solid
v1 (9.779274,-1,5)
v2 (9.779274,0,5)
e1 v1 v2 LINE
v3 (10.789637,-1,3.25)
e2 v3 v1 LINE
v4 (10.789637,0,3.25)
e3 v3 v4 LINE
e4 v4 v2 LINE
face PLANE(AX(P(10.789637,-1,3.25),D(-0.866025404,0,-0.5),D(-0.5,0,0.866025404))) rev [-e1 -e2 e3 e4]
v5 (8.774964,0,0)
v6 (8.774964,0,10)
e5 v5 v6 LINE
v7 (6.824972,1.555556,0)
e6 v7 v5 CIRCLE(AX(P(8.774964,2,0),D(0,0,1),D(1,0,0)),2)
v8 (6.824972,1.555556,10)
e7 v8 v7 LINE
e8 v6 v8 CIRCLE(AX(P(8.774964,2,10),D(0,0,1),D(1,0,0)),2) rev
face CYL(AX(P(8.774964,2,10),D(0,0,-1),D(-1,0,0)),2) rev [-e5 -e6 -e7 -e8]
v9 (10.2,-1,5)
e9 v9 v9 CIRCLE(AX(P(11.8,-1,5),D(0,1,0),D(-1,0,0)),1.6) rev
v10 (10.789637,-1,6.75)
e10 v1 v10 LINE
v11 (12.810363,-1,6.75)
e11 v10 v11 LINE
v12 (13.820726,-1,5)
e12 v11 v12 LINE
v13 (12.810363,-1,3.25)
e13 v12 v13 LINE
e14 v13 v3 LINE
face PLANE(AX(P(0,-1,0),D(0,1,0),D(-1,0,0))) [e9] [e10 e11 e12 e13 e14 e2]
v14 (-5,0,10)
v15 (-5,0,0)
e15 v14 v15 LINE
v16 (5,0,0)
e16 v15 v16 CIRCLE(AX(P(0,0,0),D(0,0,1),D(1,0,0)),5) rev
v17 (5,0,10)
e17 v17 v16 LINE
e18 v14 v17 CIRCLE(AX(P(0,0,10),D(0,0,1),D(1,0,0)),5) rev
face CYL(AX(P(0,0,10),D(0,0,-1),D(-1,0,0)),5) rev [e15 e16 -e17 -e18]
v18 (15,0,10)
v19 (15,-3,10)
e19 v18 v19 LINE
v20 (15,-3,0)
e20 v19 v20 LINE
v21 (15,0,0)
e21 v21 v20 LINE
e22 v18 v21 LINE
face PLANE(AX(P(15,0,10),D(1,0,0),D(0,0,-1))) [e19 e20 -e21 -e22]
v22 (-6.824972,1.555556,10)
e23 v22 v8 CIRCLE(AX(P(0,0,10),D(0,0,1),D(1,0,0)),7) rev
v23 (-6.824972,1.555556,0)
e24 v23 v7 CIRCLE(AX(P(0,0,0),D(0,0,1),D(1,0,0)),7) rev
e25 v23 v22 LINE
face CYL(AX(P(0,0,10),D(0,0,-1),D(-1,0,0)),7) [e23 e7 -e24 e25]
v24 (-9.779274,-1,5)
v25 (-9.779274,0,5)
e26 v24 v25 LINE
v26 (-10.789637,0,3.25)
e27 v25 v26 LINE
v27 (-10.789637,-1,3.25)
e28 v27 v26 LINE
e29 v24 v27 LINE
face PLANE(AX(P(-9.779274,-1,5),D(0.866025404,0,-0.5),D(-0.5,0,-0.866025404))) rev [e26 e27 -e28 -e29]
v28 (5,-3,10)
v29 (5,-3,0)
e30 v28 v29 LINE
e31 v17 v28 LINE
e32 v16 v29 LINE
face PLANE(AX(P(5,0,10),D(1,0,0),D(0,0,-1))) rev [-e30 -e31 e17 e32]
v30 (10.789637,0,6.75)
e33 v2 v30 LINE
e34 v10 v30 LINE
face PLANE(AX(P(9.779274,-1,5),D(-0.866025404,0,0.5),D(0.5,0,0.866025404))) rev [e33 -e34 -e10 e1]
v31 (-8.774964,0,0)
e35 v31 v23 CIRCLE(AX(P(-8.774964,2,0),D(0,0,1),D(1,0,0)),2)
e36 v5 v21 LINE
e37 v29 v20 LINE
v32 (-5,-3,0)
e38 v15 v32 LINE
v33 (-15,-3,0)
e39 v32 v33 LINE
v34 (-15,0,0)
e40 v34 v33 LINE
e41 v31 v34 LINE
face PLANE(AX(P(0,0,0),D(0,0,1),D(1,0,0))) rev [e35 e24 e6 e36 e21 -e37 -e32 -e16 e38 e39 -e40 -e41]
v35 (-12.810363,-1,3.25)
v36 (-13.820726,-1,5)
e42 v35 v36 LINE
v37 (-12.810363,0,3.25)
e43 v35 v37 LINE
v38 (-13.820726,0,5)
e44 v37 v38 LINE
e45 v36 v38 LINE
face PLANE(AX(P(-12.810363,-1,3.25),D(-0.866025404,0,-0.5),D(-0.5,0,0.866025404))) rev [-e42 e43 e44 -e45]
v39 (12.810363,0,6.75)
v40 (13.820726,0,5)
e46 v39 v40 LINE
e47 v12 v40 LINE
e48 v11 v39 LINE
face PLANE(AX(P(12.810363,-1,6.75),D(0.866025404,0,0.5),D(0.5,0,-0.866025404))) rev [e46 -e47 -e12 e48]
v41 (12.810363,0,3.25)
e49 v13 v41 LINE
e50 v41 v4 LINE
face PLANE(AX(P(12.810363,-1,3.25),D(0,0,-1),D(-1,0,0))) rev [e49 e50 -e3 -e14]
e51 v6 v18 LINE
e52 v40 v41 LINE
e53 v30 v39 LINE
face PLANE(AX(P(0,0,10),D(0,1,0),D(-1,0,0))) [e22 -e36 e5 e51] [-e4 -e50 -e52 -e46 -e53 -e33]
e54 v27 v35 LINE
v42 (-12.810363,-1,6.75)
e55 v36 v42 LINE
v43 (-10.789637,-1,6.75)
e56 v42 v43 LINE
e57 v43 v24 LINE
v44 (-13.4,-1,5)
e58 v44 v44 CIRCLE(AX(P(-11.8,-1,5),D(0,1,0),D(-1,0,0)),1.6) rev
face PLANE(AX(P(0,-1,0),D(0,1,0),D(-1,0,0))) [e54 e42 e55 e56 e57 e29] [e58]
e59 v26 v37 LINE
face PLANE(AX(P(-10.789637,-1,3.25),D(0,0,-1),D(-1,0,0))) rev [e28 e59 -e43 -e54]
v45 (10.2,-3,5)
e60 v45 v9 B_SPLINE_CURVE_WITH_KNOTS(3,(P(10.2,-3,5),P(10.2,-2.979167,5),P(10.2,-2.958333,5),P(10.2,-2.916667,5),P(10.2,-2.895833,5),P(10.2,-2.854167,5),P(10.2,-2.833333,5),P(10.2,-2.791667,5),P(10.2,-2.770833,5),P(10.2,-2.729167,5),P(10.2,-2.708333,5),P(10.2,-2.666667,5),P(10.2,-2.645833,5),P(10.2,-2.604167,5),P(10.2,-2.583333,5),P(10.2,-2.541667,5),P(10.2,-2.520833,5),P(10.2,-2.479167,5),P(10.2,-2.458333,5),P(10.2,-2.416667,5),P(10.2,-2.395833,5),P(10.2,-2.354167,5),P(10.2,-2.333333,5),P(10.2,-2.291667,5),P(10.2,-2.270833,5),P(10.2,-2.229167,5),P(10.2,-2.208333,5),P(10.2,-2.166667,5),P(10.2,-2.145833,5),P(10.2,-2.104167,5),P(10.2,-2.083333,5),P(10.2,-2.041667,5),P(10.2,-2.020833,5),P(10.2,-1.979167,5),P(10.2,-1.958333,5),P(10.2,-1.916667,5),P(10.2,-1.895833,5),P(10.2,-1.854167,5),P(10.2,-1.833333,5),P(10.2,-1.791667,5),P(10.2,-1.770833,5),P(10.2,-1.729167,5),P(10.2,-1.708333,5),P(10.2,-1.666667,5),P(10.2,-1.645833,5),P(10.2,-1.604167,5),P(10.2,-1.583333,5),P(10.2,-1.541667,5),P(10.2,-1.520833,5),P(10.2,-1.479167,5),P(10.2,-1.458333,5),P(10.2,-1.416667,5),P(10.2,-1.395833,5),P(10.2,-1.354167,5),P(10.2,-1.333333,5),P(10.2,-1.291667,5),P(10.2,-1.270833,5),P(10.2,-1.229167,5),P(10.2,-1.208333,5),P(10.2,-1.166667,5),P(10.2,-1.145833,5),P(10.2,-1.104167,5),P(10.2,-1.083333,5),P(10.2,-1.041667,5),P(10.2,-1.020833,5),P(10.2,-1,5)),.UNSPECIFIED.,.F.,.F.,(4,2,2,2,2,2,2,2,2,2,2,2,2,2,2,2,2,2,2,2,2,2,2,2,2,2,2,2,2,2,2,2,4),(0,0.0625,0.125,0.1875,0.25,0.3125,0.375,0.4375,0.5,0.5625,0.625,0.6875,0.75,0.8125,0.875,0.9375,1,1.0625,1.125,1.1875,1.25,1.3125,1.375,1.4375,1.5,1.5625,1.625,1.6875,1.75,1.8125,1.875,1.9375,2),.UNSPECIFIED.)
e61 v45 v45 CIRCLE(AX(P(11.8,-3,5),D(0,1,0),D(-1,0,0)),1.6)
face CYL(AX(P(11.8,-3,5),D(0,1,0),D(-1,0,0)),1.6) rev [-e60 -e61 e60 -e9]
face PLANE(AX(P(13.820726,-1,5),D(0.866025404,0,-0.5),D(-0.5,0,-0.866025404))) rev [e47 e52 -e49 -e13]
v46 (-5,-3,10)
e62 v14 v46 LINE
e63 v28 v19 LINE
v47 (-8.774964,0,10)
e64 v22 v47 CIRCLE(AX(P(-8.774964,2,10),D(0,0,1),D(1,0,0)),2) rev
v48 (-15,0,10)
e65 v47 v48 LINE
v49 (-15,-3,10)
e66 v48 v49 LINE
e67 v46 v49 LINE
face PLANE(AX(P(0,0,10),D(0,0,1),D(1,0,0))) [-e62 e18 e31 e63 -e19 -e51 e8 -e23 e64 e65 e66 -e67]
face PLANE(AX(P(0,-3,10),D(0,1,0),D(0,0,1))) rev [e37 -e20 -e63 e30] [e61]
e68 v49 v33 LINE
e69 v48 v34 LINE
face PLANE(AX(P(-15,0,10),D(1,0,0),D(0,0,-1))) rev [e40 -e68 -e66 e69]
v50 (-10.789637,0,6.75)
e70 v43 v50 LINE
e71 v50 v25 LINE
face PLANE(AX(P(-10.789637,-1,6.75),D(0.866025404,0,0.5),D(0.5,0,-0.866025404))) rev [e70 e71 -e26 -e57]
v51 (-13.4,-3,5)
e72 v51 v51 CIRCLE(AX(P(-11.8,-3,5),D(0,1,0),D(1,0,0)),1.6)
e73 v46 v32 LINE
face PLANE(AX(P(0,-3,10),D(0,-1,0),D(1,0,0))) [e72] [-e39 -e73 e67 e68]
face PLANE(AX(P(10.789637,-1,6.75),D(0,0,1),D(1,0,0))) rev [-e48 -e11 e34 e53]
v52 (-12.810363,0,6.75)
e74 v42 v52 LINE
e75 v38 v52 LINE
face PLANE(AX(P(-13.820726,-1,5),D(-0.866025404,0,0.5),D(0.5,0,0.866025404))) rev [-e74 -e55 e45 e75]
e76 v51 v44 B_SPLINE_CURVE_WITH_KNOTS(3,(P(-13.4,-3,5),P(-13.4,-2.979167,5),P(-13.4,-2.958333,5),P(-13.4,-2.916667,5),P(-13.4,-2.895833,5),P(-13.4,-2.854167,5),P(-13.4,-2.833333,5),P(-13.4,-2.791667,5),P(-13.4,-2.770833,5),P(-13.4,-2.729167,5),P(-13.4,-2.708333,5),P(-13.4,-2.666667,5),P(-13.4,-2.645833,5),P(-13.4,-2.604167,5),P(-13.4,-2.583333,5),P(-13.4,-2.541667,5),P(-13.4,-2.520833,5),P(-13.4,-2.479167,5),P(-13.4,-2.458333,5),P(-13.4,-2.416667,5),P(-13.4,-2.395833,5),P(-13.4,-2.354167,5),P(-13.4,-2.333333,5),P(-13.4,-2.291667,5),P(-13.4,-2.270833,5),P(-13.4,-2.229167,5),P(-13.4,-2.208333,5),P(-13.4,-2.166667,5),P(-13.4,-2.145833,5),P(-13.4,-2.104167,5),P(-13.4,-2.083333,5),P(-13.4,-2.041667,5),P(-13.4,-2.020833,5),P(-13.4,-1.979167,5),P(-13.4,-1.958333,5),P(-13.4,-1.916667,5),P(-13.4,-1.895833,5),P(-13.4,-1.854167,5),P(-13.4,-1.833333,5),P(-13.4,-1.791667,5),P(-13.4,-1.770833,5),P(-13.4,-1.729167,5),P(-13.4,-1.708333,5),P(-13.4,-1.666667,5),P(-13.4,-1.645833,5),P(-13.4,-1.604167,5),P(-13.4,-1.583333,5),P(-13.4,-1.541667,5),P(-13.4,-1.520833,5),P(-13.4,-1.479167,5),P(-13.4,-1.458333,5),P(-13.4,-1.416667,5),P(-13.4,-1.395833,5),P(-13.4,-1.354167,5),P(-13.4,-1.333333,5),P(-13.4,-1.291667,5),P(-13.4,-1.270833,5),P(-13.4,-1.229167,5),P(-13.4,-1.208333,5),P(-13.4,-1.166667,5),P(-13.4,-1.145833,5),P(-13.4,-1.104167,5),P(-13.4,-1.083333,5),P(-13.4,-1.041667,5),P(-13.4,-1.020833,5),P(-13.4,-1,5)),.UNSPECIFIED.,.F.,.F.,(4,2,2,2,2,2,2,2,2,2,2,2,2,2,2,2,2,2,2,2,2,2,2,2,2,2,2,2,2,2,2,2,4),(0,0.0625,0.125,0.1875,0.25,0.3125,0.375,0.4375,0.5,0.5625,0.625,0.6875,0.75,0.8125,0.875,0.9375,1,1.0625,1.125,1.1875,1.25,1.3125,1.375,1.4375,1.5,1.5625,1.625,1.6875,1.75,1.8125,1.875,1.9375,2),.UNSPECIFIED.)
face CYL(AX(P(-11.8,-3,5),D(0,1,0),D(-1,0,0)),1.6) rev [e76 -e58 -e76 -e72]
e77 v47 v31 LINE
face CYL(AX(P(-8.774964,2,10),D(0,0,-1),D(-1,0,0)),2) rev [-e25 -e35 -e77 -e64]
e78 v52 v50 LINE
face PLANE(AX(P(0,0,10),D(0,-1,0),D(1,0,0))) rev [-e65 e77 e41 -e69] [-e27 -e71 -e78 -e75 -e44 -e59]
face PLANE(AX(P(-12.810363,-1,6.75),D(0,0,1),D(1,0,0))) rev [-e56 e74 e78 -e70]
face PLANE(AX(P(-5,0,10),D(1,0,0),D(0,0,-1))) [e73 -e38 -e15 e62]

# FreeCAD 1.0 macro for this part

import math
import FreeCAD as App
import Part
import Sketcher

V = App.Vector
Q = App.Units.Quantity


def edges_at(feature, points):
    """Names of the edges that pass closest to the given points."""
    edges = feature.Shape.Edges
    near = lambda p: min(range(len(edges)), key=lambda i: edges[i].distToShape(Part.Vertex(*p))[0])
    return sorted({f"Edge{near(p) + 1}" for p in points})

doc = App.newDocument("Part")
body = doc.addObject("PartDesign::Body", "Body")

sketch1 = body.newObject("Sketcher::SketchObject", "Sketch")
sketch1.AttachmentSupport = (doc.getObject("XY_Plane"), [""])
sketch1.MapMode = "FlatFace"
sketch1.addGeometry([
    Part.LineSegment(V(-15, 0, 0), V(-15, -3, 0)),
    Part.LineSegment(V(-15, -3, 0), V(-5, -3, 0)),
    Part.LineSegment(V(-5, -3, 0), V(-5, 0, 0)),
    Part.ArcOfCircle(Part.Circle(V(0, 0, 0), V(0, 0, 1), 5), math.radians(0), math.radians(180)),
    Part.LineSegment(V(5, 0, 0), V(5, -3, 0)),
    Part.LineSegment(V(5, -3, 0), V(15, -3, 0)),
    Part.LineSegment(V(15, -3, 0), V(15, 0, 0)),
    Part.LineSegment(V(15, 0, 0), V(7, 0, 0)),
    Part.ArcOfCircle(Part.Circle(V(0, 0, 0), V(0, 0, 1), 7), math.radians(0), math.radians(180)),
    Part.LineSegment(V(-7, 0, 0), V(-15, 0, 0)),
], False)
sketch1.addConstraint([
    Sketcher.Constraint("Coincident", 0, 2, 1, 1),
    Sketcher.Constraint("Coincident", 1, 2, 2, 1),
    Sketcher.Constraint("Tangent", 2, 2, 3, 2),
    Sketcher.Constraint("Tangent", 3, 1, 4, 1),
    Sketcher.Constraint("Coincident", 4, 2, 5, 1),
    Sketcher.Constraint("Coincident", 5, 2, 6, 1),
    Sketcher.Constraint("Coincident", 6, 2, 7, 1),
    Sketcher.Constraint("Coincident", 7, 2, 8, 1),
    Sketcher.Constraint("Coincident", 8, 2, 9, 1),
    Sketcher.Constraint("Coincident", 9, 2, 0, 1),
    Sketcher.Constraint("Vertical", 0),
    Sketcher.Constraint("Horizontal", 1),
    Sketcher.Constraint("Vertical", 2),
    Sketcher.Constraint("Vertical", 4),
    Sketcher.Constraint("Horizontal", 5),
    Sketcher.Constraint("Vertical", 6),
    Sketcher.Constraint("Horizontal", 7),
    Sketcher.Constraint("Horizontal", 9),
    Sketcher.Constraint("Coincident", 3, 3, -1, 1),
    Sketcher.Constraint("Coincident", 8, 3, -1, 1),
    Sketcher.Constraint("Symmetric", 6, 2, 9, 2, -1, 1),
    Sketcher.Constraint("PointOnObject", 6, 2, -1),
    Sketcher.Constraint("Horizontal", 1, 2, 4, 2),
    Sketcher.Constraint("Radius", 3, Q("5 mm")),
    Sketcher.Constraint("Radius", 8, Q("7 mm")),
    Sketcher.Constraint("DistanceX", 1, 1, 1, 2, Q("10 mm")),
    Sketcher.Constraint("DistanceY", 0, 2, 0, 1, Q("3 mm")),
])
pad1 = body.newObject("PartDesign::Pad", "Pad")
pad1.Profile = sketch1
pad1.Length = 10
doc.recompute()

fillet = body.newObject("PartDesign::Fillet", "Fillet")
fillet.Base = (pad1, edges_at(pad1, [(-7, 0, 5), (7, 0, 5)]))
fillet.Radius = 2

sketch2 = body.newObject("Sketcher::SketchObject", "Sketch001")
sketch2.AttachmentSupport = (doc.getObject("XZ_Plane"), [""])
sketch2.MapMode = "FlatFace"
sketch2.addGeometry([
    Part.Circle(V(11.8, 5, 0), V(0, 0, 1), 1.6),
    Part.Circle(V(-11.8, 5, 0), V(0, 0, 1), 1.6),
], False)
sketch2.addConstraint([
    Sketcher.Constraint("Equal", 0, 1),
    Sketcher.Constraint("Symmetric", 0, 3, 1, 3, -2),
    Sketcher.Constraint("Diameter", 0, Q("3.2 mm")),
    Sketcher.Constraint("DistanceY", -1, 1, 0, 3, Q("5 mm")),
    Sketcher.Constraint("DistanceX", -1, 1, 0, 3, Q("11.8 mm")),
])
pocket1 = body.newObject("PartDesign::Pocket", "Pocket")
pocket1.Profile = sketch2
pocket1.Type = "ThroughAll"
pocket1.Reversed = True

sketch3 = body.newObject("Sketcher::SketchObject", "Sketch002")
sketch3.AttachmentSupport = (doc.getObject("XZ_Plane"), [""])
sketch3.MapMode = "FlatFace"
sketch3.addGeometry([
    Part.LineSegment(V(10.789637, 6.75, 0), V(12.810363, 6.75, 0)),
    Part.LineSegment(V(12.810363, 6.75, 0), V(13.820726, 5, 0)),
    Part.LineSegment(V(13.820726, 5, 0), V(12.810363, 3.25, 0)),
    Part.LineSegment(V(12.810363, 3.25, 0), V(10.789637, 3.25, 0)),
    Part.LineSegment(V(10.789637, 3.25, 0), V(9.779274, 5, 0)),
    Part.LineSegment(V(9.779274, 5, 0), V(10.789637, 6.75, 0)),
    Part.LineSegment(V(-12.810363, 6.75, 0), V(-10.789637, 6.75, 0)),
    Part.LineSegment(V(-10.789637, 6.75, 0), V(-9.779274, 5, 0)),
    Part.LineSegment(V(-9.779274, 5, 0), V(-10.789637, 3.25, 0)),
    Part.LineSegment(V(-10.789637, 3.25, 0), V(-12.810363, 3.25, 0)),
    Part.LineSegment(V(-12.810363, 3.25, 0), V(-13.820726, 5, 0)),
    Part.LineSegment(V(-13.820726, 5, 0), V(-12.810363, 6.75, 0)),
], False)
sketch3.addConstraint([
    Sketcher.Constraint("Coincident", 0, 2, 1, 1),
    Sketcher.Constraint("Coincident", 1, 2, 2, 1),
    Sketcher.Constraint("Coincident", 2, 2, 3, 1),
    Sketcher.Constraint("Coincident", 3, 2, 4, 1),
    Sketcher.Constraint("Coincident", 4, 2, 5, 1),
    Sketcher.Constraint("Coincident", 5, 2, 0, 1),
    Sketcher.Constraint("Coincident", 6, 2, 7, 1),
    Sketcher.Constraint("Coincident", 7, 2, 8, 1),
    Sketcher.Constraint("Coincident", 8, 2, 9, 1),
    Sketcher.Constraint("Coincident", 9, 2, 10, 1),
    Sketcher.Constraint("Coincident", 10, 2, 11, 1),
    Sketcher.Constraint("Coincident", 11, 2, 6, 1),
    Sketcher.Constraint("Horizontal", 0),
    Sketcher.Constraint("Horizontal", 3),
    Sketcher.Constraint("Horizontal", 6),
    Sketcher.Constraint("Horizontal", 9),
    Sketcher.Constraint("Symmetric", 5, 2, 6, 2, -2),
    Sketcher.Constraint("Symmetric", 4, 2, 7, 2, -2),
    Sketcher.Constraint("Symmetric", 3, 2, 8, 2, -2),
    Sketcher.Constraint("Symmetric", 1, 2, 10, 2, -2),
    Sketcher.Constraint("Parallel", 1, 4),
    Sketcher.Constraint("Parallel", 2, 5),
    Sketcher.Constraint("Parallel", 4, 7),
    Sketcher.Constraint("Parallel", 7, 10),
    Sketcher.Constraint("Parallel", 8, 11),
    Sketcher.Constraint("Horizontal", 1, 2, 4, 2),
    Sketcher.Constraint("Vertical", 0, 2, 2, 2),
    Sketcher.Constraint("Angle", 1, Q("-60 deg")),
    Sketcher.Constraint("DistanceY", -1, 1, 1, 2, Q("5 mm")),
    Sketcher.Constraint("DistanceY", 2, 2, 0, 2, Q("3.5 mm")),
    Sketcher.Constraint("DistanceX", 6, 2, 0, 2, Q("23.6 mm")),
    Sketcher.Constraint("DistanceX", 0, 1, 0, 2, Q("2.020726 mm")),
])
pocket2 = body.newObject("PartDesign::Pocket", "Pocket001")
pocket2.Profile = sketch3
pocket2.Length = 1
pocket2.Reversed = True

doc.recompute()
